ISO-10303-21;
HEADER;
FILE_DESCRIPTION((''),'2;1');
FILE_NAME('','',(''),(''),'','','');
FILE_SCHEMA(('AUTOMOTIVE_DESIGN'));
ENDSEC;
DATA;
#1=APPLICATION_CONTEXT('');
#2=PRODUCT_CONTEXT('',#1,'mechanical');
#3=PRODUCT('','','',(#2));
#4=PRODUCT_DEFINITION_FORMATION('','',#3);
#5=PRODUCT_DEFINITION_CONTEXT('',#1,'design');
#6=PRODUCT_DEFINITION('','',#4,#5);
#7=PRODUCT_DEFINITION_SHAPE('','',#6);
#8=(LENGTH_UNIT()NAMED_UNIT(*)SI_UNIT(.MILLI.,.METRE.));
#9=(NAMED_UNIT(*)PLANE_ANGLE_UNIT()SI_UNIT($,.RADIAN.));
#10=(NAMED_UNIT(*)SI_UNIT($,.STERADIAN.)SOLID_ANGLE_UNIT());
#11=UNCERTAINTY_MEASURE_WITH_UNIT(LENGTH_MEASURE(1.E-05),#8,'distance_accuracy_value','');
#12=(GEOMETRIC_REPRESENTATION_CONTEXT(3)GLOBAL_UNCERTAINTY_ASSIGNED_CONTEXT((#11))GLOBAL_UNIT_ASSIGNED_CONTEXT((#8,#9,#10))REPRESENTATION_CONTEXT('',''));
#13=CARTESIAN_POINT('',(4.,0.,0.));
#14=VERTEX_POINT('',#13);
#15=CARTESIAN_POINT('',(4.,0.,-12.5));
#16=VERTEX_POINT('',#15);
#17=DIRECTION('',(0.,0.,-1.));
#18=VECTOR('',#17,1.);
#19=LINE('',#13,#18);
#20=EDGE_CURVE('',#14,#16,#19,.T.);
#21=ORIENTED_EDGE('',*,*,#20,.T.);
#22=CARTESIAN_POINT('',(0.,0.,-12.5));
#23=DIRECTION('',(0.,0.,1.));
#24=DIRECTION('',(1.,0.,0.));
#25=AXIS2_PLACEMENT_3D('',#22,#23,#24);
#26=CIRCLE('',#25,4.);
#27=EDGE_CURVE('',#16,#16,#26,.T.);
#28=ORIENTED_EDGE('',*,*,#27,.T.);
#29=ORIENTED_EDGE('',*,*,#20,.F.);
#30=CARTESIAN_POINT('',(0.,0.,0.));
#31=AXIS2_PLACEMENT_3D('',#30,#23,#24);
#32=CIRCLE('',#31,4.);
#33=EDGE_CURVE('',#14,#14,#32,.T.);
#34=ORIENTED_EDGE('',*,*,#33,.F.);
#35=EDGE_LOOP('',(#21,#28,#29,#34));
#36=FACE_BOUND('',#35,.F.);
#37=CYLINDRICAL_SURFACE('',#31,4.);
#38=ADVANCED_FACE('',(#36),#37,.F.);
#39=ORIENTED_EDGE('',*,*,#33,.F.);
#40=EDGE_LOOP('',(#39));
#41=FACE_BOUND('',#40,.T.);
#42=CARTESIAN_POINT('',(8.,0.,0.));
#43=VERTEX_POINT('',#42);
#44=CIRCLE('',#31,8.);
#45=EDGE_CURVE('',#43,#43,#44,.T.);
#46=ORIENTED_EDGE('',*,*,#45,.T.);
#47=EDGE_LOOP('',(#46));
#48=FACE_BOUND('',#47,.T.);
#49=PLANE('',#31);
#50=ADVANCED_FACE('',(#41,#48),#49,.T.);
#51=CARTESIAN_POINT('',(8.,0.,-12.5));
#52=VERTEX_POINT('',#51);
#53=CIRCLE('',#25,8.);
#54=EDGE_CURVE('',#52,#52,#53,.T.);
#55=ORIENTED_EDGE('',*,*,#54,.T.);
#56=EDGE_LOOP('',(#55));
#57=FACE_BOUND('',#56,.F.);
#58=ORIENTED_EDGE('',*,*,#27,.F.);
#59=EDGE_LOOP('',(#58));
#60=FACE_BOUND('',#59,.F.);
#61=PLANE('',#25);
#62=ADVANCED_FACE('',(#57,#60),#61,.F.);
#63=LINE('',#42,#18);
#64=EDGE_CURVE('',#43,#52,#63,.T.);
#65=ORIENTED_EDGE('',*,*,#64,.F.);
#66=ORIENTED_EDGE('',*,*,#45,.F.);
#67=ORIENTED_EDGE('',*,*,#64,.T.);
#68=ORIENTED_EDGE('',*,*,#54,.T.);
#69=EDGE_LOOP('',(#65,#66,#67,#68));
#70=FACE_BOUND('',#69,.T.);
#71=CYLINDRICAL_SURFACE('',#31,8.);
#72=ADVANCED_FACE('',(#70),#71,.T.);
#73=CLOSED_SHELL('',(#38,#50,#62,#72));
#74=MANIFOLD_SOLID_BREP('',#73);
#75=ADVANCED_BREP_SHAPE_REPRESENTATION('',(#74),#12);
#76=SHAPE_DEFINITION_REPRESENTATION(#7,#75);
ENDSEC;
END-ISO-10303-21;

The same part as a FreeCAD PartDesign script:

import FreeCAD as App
import Part
import Sketcher

doc = App.newDocument("Part")
params = doc.addObject("Spreadsheet::Sheet", "Params")
for row, (alias, value) in enumerate([
    ("sketch1_diameter", "16 mm"),
    ("sketch1_diameter2", "8 mm"),
    ("pad1_length", "12.5 mm"),
], start=1):
    params.set(f"A{row}", alias)
    params.set(f"B{row}", "=" + value)
    params.setAlias(f"B{row}", alias)

body = doc.addObject("PartDesign::Body", "Body")

# Sketch on XY plane
sketch1 = body.newObject("Sketcher::SketchObject", "Sketch")
sketch1.AttachmentSupport = (doc.getObject("XY_Plane"), [""])
sketch1.MapMode = "FlatFace"
sketch1.addGeometry([
    Part.Circle(App.Vector(0, 0, 0), App.Vector(0, 0, 1), 8),
    Part.Circle(App.Vector(0, 0, 0), App.Vector(0, 0, 1), 4),
], False)
sketch1.addConstraint([
    Sketcher.Constraint("Coincident", 0, 3, -1, 1),
    Sketcher.Constraint("Coincident", 1, 3, -1, 1),
    Sketcher.Constraint("Diameter", 0, 16.0),
    Sketcher.Constraint("Diameter", 1, 8.0),
])
sketch1.setExpression("Constraints[2]", "Params.sketch1_diameter")
sketch1.setExpression("Constraints[3]", "Params.sketch1_diameter2")
pad1 = body.newObject("PartDesign::Pad", "Pad")
pad1.Profile = sketch1
pad1.setExpression("Length", "Params.pad1_length")
pad1.Reversed = True

doc.recompute()
